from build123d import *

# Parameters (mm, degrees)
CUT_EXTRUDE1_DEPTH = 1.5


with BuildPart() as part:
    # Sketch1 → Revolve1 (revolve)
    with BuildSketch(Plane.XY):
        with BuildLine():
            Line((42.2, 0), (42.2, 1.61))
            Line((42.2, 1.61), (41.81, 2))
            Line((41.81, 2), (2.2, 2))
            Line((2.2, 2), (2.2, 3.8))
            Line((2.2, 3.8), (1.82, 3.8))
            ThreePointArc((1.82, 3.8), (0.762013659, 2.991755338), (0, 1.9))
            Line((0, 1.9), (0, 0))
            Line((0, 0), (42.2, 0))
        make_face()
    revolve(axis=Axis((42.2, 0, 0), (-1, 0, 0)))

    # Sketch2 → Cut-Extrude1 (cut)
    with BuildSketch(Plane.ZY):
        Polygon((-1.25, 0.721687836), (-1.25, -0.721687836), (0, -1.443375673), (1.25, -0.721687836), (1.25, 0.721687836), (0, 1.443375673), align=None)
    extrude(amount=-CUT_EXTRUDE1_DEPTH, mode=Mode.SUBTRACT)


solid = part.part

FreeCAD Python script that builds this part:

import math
import FreeCAD as App
import Part
import Sketcher
from FreeCAD import Vector
Q = App.Units.Quantity


def add_polygon(sketch, points):
    """Adds a closed chain of lines whose ends are joined by coincident constraints."""
    first, n = sketch.GeometryCount, len(points)
    for a, b in zip(points, points[1:] + points[:1]):
        sketch.addGeometry(Part.LineSegment(App.Vector(*a, 0), App.Vector(*b, 0)), False)
    for i in range(n):
        sketch.addConstraint(Sketcher.Constraint("Coincident", first + i, 2, first + (i + 1) % n, 1))

doc = App.newDocument("Part")
params = doc.addObject("Spreadsheet::Sheet", "Params")
for row, (alias, value) in enumerate([
    ("sketch1_width", "42.2 mm"),
    ("sketch1_height", "1.8 mm"),
    ("sketch1_height2", "1.9 mm"),
    ("sketch1_width2", "39.61 mm"),
    ("sketch1_width3", "0.38 mm"),
    ("revolution_angle", "360 deg"),
    ("pocket1_length", "1.5 mm"),
], start=1):
    params.set(f"A{row}", alias)
    params.set(f"B{row}", "=" + value)
    params.setAlias(f"B{row}", alias)

body = doc.addObject("PartDesign::Body", "Body")

# Sketch on XY plane
sketch1 = body.newObject("Sketcher::SketchObject", "Sketch")
sketch1.AttachmentSupport = (doc.getObject("XY_Plane"), [""])
sketch1.MapMode = "FlatFace"
sketch1.addGeometry(Part.LineSegment(Vector(42.2, 0, 0), Vector(42.2, 1.61, 0)), False)
sketch1.addGeometry(Part.LineSegment(Vector(42.2, 1.61, 0), Vector(41.81, 2, 0)), False)
sketch1.addGeometry(Part.LineSegment(Vector(41.81, 2, 0), Vector(2.2, 2, 0)), False)
sketch1.addGeometry(Part.LineSegment(Vector(2.2, 2, 0), Vector(2.2, 3.8, 0)), False)
sketch1.addGeometry(Part.LineSegment(Vector(2.2, 3.8, 0), Vector(1.82, 3.8, 0)), False)
sketch1.addGeometry(Part.ArcOfCircle(Part.Circle(Vector(3.89, 0, 0), Vector(0, 0, 1), 4.32), math.radians(119), math.radians(154)), False)
sketch1.addGeometry(Part.LineSegment(Vector(0, 1.9, 0), Vector(0, 0, 0)), False)
sketch1.addGeometry(Part.LineSegment(Vector(0, 0, 0), Vector(42.2, 0, 0)), False)
sketch1.addConstraint(Sketcher.Constraint("Coincident", 0, 2, 1, 1))
sketch1.addConstraint(Sketcher.Constraint("Coincident", 1, 2, 2, 1))
sketch1.addConstraint(Sketcher.Constraint("Coincident", 2, 2, 3, 1))
sketch1.addConstraint(Sketcher.Constraint("Coincident", 3, 2, 4, 1))
sketch1.addConstraint(Sketcher.Constraint("Coincident", 4, 2, 5, 1))
sketch1.addConstraint(Sketcher.Constraint("Coincident", 5, 2, 6, 1))
sketch1.addConstraint(Sketcher.Constraint("Coincident", 6, 2, 7, 1))
sketch1.addConstraint(Sketcher.Constraint("Coincident", 7, 2, 0, 1))
sketch1.addConstraint(Sketcher.Constraint("Vertical", 0))
sketch1.addConstraint(Sketcher.Constraint("Horizontal", 2))
sketch1.addConstraint(Sketcher.Constraint("Vertical", 3))
sketch1.addConstraint(Sketcher.Constraint("Horizontal", 4))
sketch1.addConstraint(Sketcher.Constraint("Vertical", 6))
sketch1.addConstraint(Sketcher.Constraint("Horizontal", 7))
sketch1.addConstraint(Sketcher.Constraint("Coincident", 6, 2, -1, 1))
sketch1.addConstraint(Sketcher.Constraint("PointOnObject", 5, 3, -1))
sketch1.addConstraint(Sketcher.Constraint("Angle", 1, Q("135 deg")))
sketch1.addConstraint(Sketcher.Constraint("DistanceX", 7, 1, 7, 2, 42.2))
sketch1.addConstraint(Sketcher.Constraint("DistanceY", 3, 1, 3, 2, 1.8))
sketch1.addConstraint(Sketcher.Constraint("DistanceY", 6, 2, 6, 1, 1.9))
sketch1.addConstraint(Sketcher.Constraint("DistanceY", -1, 1, 1, 2, 2.0))
sketch1.addConstraint(Sketcher.Constraint("DistanceX", 2, 2, 0, 2, 40.0))
sketch1.addConstraint(Sketcher.Constraint("DistanceX", 2, 2, 2, 1, 39.61))
sketch1.addConstraint(Sketcher.Constraint("DistanceX", 4, 2, 4, 1, 0.38))
sketch1.setExpression("Constraints[17]", "Params.sketch1_width")
sketch1.setExpression("Constraints[18]", "Params.sketch1_height")
sketch1.setExpression("Constraints[19]", "Params.sketch1_height2")
sketch1.setExpression("Constraints[22]", "Params.sketch1_width2")
sketch1.setExpression("Constraints[23]", "Params.sketch1_width3")
revolution = body.newObject("PartDesign::Revolution", "Revolution")
revolution.Profile = sketch1
revolution.ReferenceAxis = (sketch1, ["H_Axis"])
revolution.setExpression("Angle", "Params.revolution_angle")

# Sketch on YZ plane
sketch2 = body.newObject("Sketcher::SketchObject", "Sketch001")
sketch2.AttachmentSupport = (doc.getObject("YZ_Plane"), [""])
sketch2.MapMode = "FlatFace"
add_polygon(sketch2, [(0.7, -1.2), (-0.7, -1.2), (-1.4, 0), (-0.7, 1.2), (0.7, 1.2), (1.4, 0)])  # lines 0-5
sketch2.addConstraint(Sketcher.Constraint("Horizontal", 0))
sketch2.addConstraint(Sketcher.Constraint("Horizontal", 3))
sketch2.addConstraint(Sketcher.Constraint("Symmetric", 0, 2, 3, 2, -1, 1))
sketch2.addConstraint(Sketcher.Constraint("Symmetric", 1, 2, 4, 2, -1, 1))
sketch2.addConstraint(Sketcher.Constraint("PointOnObject", 1, 2, -1))
sketch2.addConstraint(Sketcher.Constraint("Parallel", 2, 5))
sketch2.addConstraint(Sketcher.Constraint("Vertical", 0, 2, 2, 2))
sketch2.addConstraint(Sketcher.Constraint("Angle", 1, Q("120 deg")))
sketch2.addConstraint(Sketcher.Constraint("DistanceY", 0, 2, 2, 2, 2.5))
sketch2.addConstraint(Sketcher.Constraint("DistanceX", 0, 2, 0, 1, 1.443376))
pocket1 = body.newObject("PartDesign::Pocket", "Pocket")
pocket1.Profile = sketch2
pocket1.setExpression("Length", "Params.pocket1_length")
pocket1.Reversed = True

doc.recompute()
